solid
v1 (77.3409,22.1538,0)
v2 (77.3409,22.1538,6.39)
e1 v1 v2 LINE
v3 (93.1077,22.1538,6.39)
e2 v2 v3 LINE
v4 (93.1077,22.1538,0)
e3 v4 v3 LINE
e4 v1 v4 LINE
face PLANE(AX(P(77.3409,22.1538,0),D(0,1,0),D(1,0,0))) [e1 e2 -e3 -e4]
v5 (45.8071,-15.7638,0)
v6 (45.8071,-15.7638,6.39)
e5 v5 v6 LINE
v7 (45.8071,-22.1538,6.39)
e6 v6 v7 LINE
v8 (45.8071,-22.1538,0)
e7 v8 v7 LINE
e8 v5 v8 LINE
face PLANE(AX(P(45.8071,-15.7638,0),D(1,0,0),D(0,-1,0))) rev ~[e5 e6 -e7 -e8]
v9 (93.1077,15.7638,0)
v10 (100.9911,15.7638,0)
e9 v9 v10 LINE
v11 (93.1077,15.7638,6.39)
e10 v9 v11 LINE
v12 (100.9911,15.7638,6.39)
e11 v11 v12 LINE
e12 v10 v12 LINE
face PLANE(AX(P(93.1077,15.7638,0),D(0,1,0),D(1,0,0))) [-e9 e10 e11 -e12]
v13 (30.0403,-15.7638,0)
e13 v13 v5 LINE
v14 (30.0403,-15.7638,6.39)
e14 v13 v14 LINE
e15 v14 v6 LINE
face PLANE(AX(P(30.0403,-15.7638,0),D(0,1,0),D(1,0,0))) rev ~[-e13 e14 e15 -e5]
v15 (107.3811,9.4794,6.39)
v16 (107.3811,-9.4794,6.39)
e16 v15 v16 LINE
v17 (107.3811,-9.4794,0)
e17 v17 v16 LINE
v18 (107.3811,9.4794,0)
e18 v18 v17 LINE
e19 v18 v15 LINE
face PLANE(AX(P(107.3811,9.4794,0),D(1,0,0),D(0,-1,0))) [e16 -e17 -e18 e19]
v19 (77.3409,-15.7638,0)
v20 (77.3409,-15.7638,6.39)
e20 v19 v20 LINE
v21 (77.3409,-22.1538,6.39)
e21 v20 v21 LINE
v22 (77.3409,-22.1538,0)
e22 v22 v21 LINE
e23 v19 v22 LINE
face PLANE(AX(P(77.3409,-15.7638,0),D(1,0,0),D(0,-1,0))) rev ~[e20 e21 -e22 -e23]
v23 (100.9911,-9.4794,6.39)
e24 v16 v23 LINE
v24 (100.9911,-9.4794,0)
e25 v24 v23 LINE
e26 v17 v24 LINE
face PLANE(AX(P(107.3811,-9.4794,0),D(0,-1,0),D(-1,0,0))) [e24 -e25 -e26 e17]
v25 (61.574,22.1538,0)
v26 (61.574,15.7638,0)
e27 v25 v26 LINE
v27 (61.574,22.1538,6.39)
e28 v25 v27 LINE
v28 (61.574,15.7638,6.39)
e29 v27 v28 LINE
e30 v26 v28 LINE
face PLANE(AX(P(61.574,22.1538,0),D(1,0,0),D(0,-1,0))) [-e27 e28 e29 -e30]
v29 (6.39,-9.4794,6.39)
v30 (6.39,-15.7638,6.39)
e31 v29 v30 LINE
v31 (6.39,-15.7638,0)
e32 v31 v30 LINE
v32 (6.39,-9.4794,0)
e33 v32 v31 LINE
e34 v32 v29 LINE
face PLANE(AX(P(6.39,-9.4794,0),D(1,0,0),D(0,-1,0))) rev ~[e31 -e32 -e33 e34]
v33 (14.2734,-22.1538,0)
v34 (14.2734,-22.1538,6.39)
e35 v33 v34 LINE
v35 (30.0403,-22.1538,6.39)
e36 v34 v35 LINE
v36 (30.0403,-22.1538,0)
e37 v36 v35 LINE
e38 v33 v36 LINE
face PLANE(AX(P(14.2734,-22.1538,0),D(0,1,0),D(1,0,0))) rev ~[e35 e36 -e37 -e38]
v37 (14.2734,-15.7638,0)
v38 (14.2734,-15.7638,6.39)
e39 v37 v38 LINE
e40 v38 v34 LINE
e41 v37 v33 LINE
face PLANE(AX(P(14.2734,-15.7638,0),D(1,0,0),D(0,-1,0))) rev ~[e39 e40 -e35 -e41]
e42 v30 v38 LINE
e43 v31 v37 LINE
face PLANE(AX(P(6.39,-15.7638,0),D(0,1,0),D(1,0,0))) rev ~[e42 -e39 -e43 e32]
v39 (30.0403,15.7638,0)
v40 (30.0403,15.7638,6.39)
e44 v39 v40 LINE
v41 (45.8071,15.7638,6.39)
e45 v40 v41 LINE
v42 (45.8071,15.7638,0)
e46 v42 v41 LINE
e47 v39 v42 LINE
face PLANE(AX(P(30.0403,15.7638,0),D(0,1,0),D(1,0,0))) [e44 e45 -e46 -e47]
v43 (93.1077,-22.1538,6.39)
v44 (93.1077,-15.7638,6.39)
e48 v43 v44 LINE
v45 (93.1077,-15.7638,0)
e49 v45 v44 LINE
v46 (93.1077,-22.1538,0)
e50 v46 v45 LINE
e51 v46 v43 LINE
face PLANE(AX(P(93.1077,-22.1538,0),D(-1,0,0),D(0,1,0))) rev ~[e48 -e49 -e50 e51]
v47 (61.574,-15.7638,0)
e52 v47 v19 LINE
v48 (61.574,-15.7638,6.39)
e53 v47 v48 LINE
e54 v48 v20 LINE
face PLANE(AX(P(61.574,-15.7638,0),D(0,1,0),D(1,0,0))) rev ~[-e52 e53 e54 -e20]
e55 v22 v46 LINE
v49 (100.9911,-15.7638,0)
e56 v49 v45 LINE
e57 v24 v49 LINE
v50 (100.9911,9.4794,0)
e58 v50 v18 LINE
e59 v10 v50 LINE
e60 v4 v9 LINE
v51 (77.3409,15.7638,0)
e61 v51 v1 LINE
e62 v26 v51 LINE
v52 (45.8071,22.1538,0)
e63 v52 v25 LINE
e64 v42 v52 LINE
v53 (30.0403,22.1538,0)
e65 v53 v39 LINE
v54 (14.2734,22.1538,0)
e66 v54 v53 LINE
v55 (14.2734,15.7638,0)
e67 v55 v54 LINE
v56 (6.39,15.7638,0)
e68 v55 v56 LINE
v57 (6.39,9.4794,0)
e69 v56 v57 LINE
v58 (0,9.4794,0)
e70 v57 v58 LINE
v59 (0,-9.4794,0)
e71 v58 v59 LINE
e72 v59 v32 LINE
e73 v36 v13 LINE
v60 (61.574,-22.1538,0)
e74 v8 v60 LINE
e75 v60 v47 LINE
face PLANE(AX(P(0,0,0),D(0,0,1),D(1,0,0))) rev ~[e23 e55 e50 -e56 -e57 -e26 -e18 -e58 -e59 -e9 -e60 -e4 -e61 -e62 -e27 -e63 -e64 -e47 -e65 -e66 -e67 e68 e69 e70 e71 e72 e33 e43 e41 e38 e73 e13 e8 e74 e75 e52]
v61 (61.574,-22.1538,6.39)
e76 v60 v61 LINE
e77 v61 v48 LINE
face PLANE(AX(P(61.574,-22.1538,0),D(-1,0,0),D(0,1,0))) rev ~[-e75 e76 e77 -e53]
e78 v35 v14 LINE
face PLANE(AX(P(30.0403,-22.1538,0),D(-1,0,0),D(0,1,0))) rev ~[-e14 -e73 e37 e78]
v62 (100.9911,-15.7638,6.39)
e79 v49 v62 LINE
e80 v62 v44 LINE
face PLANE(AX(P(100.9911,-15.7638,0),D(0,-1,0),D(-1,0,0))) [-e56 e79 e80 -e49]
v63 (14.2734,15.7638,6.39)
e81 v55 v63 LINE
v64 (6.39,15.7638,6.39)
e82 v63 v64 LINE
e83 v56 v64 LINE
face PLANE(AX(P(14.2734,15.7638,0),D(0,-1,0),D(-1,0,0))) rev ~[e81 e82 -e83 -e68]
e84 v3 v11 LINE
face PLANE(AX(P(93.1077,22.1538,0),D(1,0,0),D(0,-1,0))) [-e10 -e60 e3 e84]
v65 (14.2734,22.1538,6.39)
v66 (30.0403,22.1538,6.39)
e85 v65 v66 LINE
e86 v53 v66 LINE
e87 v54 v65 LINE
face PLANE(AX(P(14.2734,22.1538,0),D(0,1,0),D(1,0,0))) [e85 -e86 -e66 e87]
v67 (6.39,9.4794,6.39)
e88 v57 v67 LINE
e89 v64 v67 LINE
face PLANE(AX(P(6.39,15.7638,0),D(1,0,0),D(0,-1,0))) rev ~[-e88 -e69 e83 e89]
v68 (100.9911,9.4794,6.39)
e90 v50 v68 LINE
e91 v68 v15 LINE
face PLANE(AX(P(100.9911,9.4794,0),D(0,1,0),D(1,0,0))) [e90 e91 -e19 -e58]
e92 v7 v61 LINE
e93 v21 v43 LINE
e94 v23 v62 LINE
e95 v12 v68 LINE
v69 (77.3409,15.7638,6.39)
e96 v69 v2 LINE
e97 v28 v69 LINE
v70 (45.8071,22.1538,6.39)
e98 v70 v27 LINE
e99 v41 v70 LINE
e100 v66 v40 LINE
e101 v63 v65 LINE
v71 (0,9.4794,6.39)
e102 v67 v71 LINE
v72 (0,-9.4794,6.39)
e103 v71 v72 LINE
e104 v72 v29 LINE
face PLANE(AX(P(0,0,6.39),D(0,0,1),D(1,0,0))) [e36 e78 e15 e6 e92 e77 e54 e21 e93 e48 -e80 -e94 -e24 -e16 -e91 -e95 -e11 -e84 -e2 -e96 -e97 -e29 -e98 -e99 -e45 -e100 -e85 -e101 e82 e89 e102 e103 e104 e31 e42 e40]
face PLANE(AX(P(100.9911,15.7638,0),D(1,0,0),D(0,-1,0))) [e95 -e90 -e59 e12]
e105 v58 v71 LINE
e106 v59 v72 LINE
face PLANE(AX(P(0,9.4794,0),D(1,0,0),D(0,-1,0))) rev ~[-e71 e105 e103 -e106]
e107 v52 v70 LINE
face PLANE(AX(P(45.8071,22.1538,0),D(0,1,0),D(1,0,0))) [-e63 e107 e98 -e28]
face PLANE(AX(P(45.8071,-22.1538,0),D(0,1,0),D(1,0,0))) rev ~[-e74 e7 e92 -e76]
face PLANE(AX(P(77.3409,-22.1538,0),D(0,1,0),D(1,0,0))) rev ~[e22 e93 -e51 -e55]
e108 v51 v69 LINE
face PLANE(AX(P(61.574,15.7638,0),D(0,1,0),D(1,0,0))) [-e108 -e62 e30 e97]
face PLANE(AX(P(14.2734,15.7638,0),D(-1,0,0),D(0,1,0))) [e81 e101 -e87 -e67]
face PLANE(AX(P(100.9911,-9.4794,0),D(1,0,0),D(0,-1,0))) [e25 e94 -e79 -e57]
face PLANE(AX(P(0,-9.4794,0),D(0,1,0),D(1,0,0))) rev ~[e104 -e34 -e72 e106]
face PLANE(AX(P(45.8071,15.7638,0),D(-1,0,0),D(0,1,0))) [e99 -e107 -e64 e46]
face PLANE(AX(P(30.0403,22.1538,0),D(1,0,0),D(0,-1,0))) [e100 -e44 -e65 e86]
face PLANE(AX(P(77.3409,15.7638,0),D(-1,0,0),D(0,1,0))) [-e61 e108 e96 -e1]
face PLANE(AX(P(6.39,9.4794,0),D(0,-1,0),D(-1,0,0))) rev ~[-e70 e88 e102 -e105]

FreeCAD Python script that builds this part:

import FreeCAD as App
import Part
import Sketcher

doc = App.newDocument("Part")
body = doc.addObject("PartDesign::Body", "Body")

sketch1 = body.newObject("Sketcher::SketchObject", "Sketch")
sketch1.AttachmentSupport = (doc.getObject("XY_Plane"), [""])
sketch1.MapMode = "FlatFace"
sketch1.addGeometry([
    Part.LineSegment(App.Vector(14, 22, 0), App.Vector(14, 16, 0)),
    Part.LineSegment(App.Vector(14, 16, 0), App.Vector(6, 16, 0)),
    Part.LineSegment(App.Vector(6, 16, 0), App.Vector(6, 9, 0)),
    Part.LineSegment(App.Vector(6, 9, 0), App.Vector(0, 9, 0)),
    Part.LineSegment(App.Vector(0, 9, 0), App.Vector(0, -9, 0)),
    Part.LineSegment(App.Vector(0, -9, 0), App.Vector(6, -9, 0)),
    Part.LineSegment(App.Vector(6, -9, 0), App.Vector(6, -16, 0)),
    Part.LineSegment(App.Vector(6, -16, 0), App.Vector(14, -16, 0)),
    Part.LineSegment(App.Vector(14, -16, 0), App.Vector(14, -22, 0)),
    Part.LineSegment(App.Vector(14, -22, 0), App.Vector(30, -22, 0)),
    Part.LineSegment(App.Vector(30, -22, 0), App.Vector(30, -16, 0)),
    Part.LineSegment(App.Vector(30, -16, 0), App.Vector(46, -16, 0)),
    Part.LineSegment(App.Vector(46, -16, 0), App.Vector(46, -22, 0)),
    Part.LineSegment(App.Vector(46, -22, 0), App.Vector(62, -22, 0)),
    Part.LineSegment(App.Vector(62, -22, 0), App.Vector(62, -16, 0)),
    Part.LineSegment(App.Vector(62, -16, 0), App.Vector(77, -16, 0)),
    Part.LineSegment(App.Vector(77, -16, 0), App.Vector(77, -22, 0)),
    Part.LineSegment(App.Vector(77, -22, 0), App.Vector(93, -22, 0)),
    Part.LineSegment(App.Vector(93, -22, 0), App.Vector(93, -16, 0)),
    Part.LineSegment(App.Vector(93, -16, 0), App.Vector(101, -16, 0)),
    Part.LineSegment(App.Vector(101, -16, 0), App.Vector(101, -9, 0)),
    Part.LineSegment(App.Vector(101, -9, 0), App.Vector(107, -9, 0)),
    Part.LineSegment(App.Vector(107, -9, 0), App.Vector(107, 9, 0)),
    Part.LineSegment(App.Vector(107, 9, 0), App.Vector(101, 9, 0)),
    Part.LineSegment(App.Vector(101, 9, 0), App.Vector(101, 16, 0)),
    Part.LineSegment(App.Vector(101, 16, 0), App.Vector(93, 16, 0)),
    Part.LineSegment(App.Vector(93, 16, 0), App.Vector(93, 22, 0)),
    Part.LineSegment(App.Vector(93, 22, 0), App.Vector(77, 22, 0)),
    Part.LineSegment(App.Vector(77, 22, 0), App.Vector(77, 16, 0)),
    Part.LineSegment(App.Vector(77, 16, 0), App.Vector(62, 16, 0)),
    Part.LineSegment(App.Vector(62, 16, 0), App.Vector(62, 22, 0)),
    Part.LineSegment(App.Vector(62, 22, 0), App.Vector(46, 22, 0)),
    Part.LineSegment(App.Vector(46, 22, 0), App.Vector(46, 16, 0)),
    Part.LineSegment(App.Vector(46, 16, 0), App.Vector(30, 16, 0)),
    Part.LineSegment(App.Vector(30, 16, 0), App.Vector(30, 22, 0)),
    Part.LineSegment(App.Vector(30, 22, 0), App.Vector(14, 22, 0)),
], False)
sketch1.addConstraint([
    Sketcher.Constraint("Coincident", 0, 2, 1, 1),
    Sketcher.Constraint("Coincident", 1, 2, 2, 1),
    Sketcher.Constraint("Coincident", 2, 2, 3, 1),
    Sketcher.Constraint("Coincident", 3, 2, 4, 1),
    Sketcher.Constraint("Coincident", 4, 2, 5, 1),
    Sketcher.Constraint("Coincident", 5, 2, 6, 1),
    Sketcher.Constraint("Coincident", 6, 2, 7, 1),
    Sketcher.Constraint("Coincident", 7, 2, 8, 1),
    Sketcher.Constraint("Coincident", 8, 2, 9, 1),
    Sketcher.Constraint("Coincident", 9, 2, 10, 1),
    Sketcher.Constraint("Coincident", 10, 2, 11, 1),
    Sketcher.Constraint("Coincident", 11, 2, 12, 1),
    Sketcher.Constraint("Coincident", 12, 2, 13, 1),
    Sketcher.Constraint("Coincident", 13, 2, 14, 1),
    Sketcher.Constraint("Coincident", 14, 2, 15, 1),
    Sketcher.Constraint("Coincident", 15, 2, 16, 1),
    Sketcher.Constraint("Coincident", 16, 2, 17, 1),
    Sketcher.Constraint("Coincident", 17, 2, 18, 1),
    Sketcher.Constraint("Coincident", 18, 2, 19, 1),
    Sketcher.Constraint("Coincident", 19, 2, 20, 1),
    Sketcher.Constraint("Coincident", 20, 2, 21, 1),
    Sketcher.Constraint("Coincident", 21, 2, 22, 1),
    Sketcher.Constraint("Coincident", 22, 2, 23, 1),
    Sketcher.Constraint("Coincident", 23, 2, 24, 1),
    Sketcher.Constraint("Coincident", 24, 2, 25, 1),
    Sketcher.Constraint("Coincident", 25, 2, 26, 1),
    Sketcher.Constraint("Coincident", 26, 2, 27, 1),
    Sketcher.Constraint("Coincident", 27, 2, 28, 1),
    Sketcher.Constraint("Coincident", 28, 2, 29, 1),
    Sketcher.Constraint("Coincident", 29, 2, 30, 1),
    Sketcher.Constraint("Coincident", 30, 2, 31, 1),
    Sketcher.Constraint("Coincident", 31, 2, 32, 1),
    Sketcher.Constraint("Coincident", 32, 2, 33, 1),
    Sketcher.Constraint("Coincident", 33, 2, 34, 1),
    Sketcher.Constraint("Coincident", 34, 2, 35, 1),
    Sketcher.Constraint("Coincident", 35, 2, 0, 1),
    Sketcher.Constraint("Vertical", 0),
    Sketcher.Constraint("Horizontal", 1),
    Sketcher.Constraint("Vertical", 2),
    Sketcher.Constraint("Horizontal", 3),
    Sketcher.Constraint("Vertical", 4),
    Sketcher.Constraint("Horizontal", 5),
    Sketcher.Constraint("Vertical", 6),
    Sketcher.Constraint("Horizontal", 7),
    Sketcher.Constraint("Vertical", 8),
    Sketcher.Constraint("Horizontal", 9),
    Sketcher.Constraint("Vertical", 10),
    Sketcher.Constraint("Horizontal", 11),
    Sketcher.Constraint("Vertical", 12),
    Sketcher.Constraint("Horizontal", 13),
    Sketcher.Constraint("Vertical", 14),
    Sketcher.Constraint("Horizontal", 15),
    Sketcher.Constraint("Vertical", 16),
    Sketcher.Constraint("Horizontal", 17),
    Sketcher.Constraint("Vertical", 18),
    Sketcher.Constraint("Horizontal", 19),
    Sketcher.Constraint("Vertical", 20),
    Sketcher.Constraint("Horizontal", 21),
    Sketcher.Constraint("Vertical", 22),
    Sketcher.Constraint("Horizontal", 23),
    Sketcher.Constraint("Vertical", 24),
    Sketcher.Constraint("Horizontal", 25),
    Sketcher.Constraint("Vertical", 26),
    Sketcher.Constraint("Horizontal", 27),
    Sketcher.Constraint("Vertical", 28),
    Sketcher.Constraint("Horizontal", 29),
    Sketcher.Constraint("Vertical", 30),
    Sketcher.Constraint("Horizontal", 31),
    Sketcher.Constraint("Vertical", 32),
    Sketcher.Constraint("Horizontal", 33),
    Sketcher.Constraint("Vertical", 34),
    Sketcher.Constraint("Horizontal", 35),
    Sketcher.Constraint("Symmetric", 3, 2, 4, 2, -1, 1),
    Sketcher.Constraint("Symmetric", 1, 2, 6, 2, -1),
    Sketcher.Constraint("Symmetric", 20, 2, 23, 2, -1),
    Sketcher.Constraint("Symmetric", 18, 2, 25, 2, -1),
    Sketcher.Constraint("Symmetric", 16, 2, 27, 2, -1),
    Sketcher.Constraint("Symmetric", 14, 2, 29, 2, -1),
    Sketcher.Constraint("Symmetric", 12, 2, 31, 2, -1),
    Sketcher.Constraint("Symmetric", 10, 2, 33, 2, -1),
    Sketcher.Constraint("Symmetric", 8, 2, 35, 2, -1),
    Sketcher.Constraint("Horizontal", 7, 2, 10, 2),
    Sketcher.Constraint("Horizontal", 9, 2, 12, 2),
    Sketcher.Constraint("Horizontal", 11, 2, 14, 2),
    Sketcher.Constraint("Horizontal", 13, 2, 16, 2),
    Sketcher.Constraint("Horizontal", 15, 2, 18, 2),
    Sketcher.Constraint("Horizontal", 5, 2, 20, 2),
    Sketcher.Constraint("Equal", 9, 11),
    Sketcher.Constraint("Equal", 11, 13),
    Sketcher.Constraint("Equal", 13, 15),
    Sketcher.Constraint("Equal", 15, 17),
    Sketcher.Constraint("Equal", 7, 19),
    Sketcher.Constraint("Equal", 5, 21),
    Sketcher.Constraint("Equal", 23, 0),
    Sketcher.Constraint("DistanceX", 3, 2, 3, 1, 6.39),
    Sketcher.Constraint("DistanceX", 9, 1, 9, 2, 15.767),
    Sketcher.Constraint("DistanceY", 4, 2, 4, 1, 18.9588),
    Sketcher.Constraint("DistanceY", 6, 2, 1, 2, 31.5276),
    Sketcher.Constraint("DistanceX", 1, 2, 1, 1, 7.8834),
])
pad1 = body.newObject("PartDesign::Pad", "Pad")
pad1.Profile = sketch1
pad1.Length = 6.39

doc.recompute()
